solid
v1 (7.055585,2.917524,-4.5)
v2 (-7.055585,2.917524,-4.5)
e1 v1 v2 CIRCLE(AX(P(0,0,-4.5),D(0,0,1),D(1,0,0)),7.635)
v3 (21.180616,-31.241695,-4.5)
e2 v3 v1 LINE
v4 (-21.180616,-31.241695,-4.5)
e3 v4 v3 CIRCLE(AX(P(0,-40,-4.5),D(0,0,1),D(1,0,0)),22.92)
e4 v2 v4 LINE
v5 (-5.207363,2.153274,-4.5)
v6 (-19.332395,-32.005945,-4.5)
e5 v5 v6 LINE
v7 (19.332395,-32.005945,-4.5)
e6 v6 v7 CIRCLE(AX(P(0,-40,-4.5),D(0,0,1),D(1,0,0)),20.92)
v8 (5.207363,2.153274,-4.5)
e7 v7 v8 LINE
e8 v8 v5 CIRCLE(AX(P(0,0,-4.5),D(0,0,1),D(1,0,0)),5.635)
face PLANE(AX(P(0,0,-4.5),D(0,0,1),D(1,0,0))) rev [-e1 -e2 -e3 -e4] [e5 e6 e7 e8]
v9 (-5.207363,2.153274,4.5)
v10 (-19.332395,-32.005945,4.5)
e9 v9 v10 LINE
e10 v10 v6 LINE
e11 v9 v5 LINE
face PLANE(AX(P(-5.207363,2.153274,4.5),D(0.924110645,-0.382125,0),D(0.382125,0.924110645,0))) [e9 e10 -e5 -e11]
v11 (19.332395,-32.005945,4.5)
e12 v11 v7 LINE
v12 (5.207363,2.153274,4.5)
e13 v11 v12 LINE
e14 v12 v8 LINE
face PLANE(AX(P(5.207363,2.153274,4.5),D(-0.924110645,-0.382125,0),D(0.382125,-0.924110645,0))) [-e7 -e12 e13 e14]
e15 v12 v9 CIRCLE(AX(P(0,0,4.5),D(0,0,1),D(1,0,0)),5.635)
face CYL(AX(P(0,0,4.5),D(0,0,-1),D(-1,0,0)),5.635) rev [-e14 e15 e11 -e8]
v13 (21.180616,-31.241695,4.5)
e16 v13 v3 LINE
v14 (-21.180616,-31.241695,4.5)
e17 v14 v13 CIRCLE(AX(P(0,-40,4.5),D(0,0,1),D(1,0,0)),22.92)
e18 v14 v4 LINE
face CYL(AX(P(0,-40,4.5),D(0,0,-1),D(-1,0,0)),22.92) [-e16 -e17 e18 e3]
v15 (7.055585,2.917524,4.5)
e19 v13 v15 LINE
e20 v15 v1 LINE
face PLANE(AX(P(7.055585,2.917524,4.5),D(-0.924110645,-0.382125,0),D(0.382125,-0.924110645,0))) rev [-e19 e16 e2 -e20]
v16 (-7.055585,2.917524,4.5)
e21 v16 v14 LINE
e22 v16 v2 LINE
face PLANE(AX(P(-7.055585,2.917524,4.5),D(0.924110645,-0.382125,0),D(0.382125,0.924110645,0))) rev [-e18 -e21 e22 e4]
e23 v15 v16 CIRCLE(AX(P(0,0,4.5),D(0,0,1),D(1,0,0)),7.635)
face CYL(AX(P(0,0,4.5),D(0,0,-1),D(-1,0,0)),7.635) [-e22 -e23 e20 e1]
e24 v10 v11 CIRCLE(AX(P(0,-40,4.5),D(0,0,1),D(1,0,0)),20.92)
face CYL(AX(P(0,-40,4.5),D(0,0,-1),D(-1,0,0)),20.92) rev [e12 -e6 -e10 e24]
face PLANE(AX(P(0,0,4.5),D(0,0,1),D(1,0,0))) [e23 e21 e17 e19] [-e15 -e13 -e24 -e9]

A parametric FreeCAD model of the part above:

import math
import FreeCAD as App
import Part
import Sketcher
from FreeCAD import Vector
Q = App.Units.Quantity

doc = App.newDocument("Part")
body = doc.addObject("PartDesign::Body", "Body")

sketch1 = doc.addObject("Sketcher::SketchObject", "Sketch")
body.addObject(sketch1)
sketch1.AttachmentSupport = (doc.XY_Plane, [""])
sketch1.MapMode = "FlatFace"
sketch1.addGeometry(Part.LineSegment(Vector(21, -31, 0), Vector(7, 3, 0)), False)
sketch1.addGeometry(Part.ArcOfCircle(Part.Circle(Vector(0, 0, 0), Vector(0, 0, 1), 8), math.radians(22), math.radians(158)), False)
sketch1.addGeometry(Part.LineSegment(Vector(-7, 3, 0), Vector(-21, -31, 0)), False)
sketch1.addGeometry(Part.ArcOfCircle(Part.Circle(Vector(0, -40, 0), Vector(0, 0, 1), 23), math.radians(158), math.radians(382)), False)
sketch1.addGeometry(Part.LineSegment(Vector(5, 2, 0), Vector(19, -32, 0)), False)
sketch1.addGeometry(Part.ArcOfCircle(Part.Circle(Vector(0, -40, 0), Vector(0, 0, 1), 21), math.radians(158), math.radians(382)), False)
sketch1.addGeometry(Part.LineSegment(Vector(-19, -32, 0), Vector(-5, 2, 0)), False)
sketch1.addGeometry(Part.ArcOfCircle(Part.Circle(Vector(0, 0, 0), Vector(0, 0, 1), 6), math.radians(22), math.radians(158)), False)
sketch1.addConstraint(Sketcher.Constraint("Tangent", 0, 2, 1, 1))
sketch1.addConstraint(Sketcher.Constraint("Tangent", 1, 2, 2, 1))
sketch1.addConstraint(Sketcher.Constraint("Tangent", 2, 2, 3, 1))
sketch1.addConstraint(Sketcher.Constraint("Tangent", 3, 2, 0, 1))
sketch1.addConstraint(Sketcher.Constraint("Tangent", 4, 2, 5, 2))
sketch1.addConstraint(Sketcher.Constraint("Tangent", 5, 1, 6, 1))
sketch1.addConstraint(Sketcher.Constraint("Tangent", 6, 2, 7, 2))
sketch1.addConstraint(Sketcher.Constraint("Tangent", 7, 1, 4, 1))
sketch1.addConstraint(Sketcher.Constraint("Coincident", 1, 3, -1, 1))
sketch1.addConstraint(Sketcher.Constraint("Coincident", 7, 3, -1, 1))
sketch1.addConstraint(Sketcher.Constraint("Coincident", 5, 3, 3, 3))
sketch1.addConstraint(Sketcher.Constraint("PointOnObject", 3, 3, -2))
sketch1.addConstraint(Sketcher.Constraint("Parallel", 0, 4))
sketch1.addConstraint(Sketcher.Constraint("Radius", 3, Q("22.92 mm")))
sketch1.addConstraint(Sketcher.Constraint("Radius", 5, Q("20.92 mm")))
sketch1.addConstraint(Sketcher.Constraint("DistanceY", 3, 3, -1, 1, Q("40 mm")))
sketch1.addConstraint(Sketcher.Constraint("Radius", 1, Q("7.635 mm")))
pad1 = doc.addObject("PartDesign::Pad", "Pad")
body.addObject(pad1)
pad1.Profile = sketch1
pad1.Length = 9
pad1.Midplane = True

doc.recompute()
